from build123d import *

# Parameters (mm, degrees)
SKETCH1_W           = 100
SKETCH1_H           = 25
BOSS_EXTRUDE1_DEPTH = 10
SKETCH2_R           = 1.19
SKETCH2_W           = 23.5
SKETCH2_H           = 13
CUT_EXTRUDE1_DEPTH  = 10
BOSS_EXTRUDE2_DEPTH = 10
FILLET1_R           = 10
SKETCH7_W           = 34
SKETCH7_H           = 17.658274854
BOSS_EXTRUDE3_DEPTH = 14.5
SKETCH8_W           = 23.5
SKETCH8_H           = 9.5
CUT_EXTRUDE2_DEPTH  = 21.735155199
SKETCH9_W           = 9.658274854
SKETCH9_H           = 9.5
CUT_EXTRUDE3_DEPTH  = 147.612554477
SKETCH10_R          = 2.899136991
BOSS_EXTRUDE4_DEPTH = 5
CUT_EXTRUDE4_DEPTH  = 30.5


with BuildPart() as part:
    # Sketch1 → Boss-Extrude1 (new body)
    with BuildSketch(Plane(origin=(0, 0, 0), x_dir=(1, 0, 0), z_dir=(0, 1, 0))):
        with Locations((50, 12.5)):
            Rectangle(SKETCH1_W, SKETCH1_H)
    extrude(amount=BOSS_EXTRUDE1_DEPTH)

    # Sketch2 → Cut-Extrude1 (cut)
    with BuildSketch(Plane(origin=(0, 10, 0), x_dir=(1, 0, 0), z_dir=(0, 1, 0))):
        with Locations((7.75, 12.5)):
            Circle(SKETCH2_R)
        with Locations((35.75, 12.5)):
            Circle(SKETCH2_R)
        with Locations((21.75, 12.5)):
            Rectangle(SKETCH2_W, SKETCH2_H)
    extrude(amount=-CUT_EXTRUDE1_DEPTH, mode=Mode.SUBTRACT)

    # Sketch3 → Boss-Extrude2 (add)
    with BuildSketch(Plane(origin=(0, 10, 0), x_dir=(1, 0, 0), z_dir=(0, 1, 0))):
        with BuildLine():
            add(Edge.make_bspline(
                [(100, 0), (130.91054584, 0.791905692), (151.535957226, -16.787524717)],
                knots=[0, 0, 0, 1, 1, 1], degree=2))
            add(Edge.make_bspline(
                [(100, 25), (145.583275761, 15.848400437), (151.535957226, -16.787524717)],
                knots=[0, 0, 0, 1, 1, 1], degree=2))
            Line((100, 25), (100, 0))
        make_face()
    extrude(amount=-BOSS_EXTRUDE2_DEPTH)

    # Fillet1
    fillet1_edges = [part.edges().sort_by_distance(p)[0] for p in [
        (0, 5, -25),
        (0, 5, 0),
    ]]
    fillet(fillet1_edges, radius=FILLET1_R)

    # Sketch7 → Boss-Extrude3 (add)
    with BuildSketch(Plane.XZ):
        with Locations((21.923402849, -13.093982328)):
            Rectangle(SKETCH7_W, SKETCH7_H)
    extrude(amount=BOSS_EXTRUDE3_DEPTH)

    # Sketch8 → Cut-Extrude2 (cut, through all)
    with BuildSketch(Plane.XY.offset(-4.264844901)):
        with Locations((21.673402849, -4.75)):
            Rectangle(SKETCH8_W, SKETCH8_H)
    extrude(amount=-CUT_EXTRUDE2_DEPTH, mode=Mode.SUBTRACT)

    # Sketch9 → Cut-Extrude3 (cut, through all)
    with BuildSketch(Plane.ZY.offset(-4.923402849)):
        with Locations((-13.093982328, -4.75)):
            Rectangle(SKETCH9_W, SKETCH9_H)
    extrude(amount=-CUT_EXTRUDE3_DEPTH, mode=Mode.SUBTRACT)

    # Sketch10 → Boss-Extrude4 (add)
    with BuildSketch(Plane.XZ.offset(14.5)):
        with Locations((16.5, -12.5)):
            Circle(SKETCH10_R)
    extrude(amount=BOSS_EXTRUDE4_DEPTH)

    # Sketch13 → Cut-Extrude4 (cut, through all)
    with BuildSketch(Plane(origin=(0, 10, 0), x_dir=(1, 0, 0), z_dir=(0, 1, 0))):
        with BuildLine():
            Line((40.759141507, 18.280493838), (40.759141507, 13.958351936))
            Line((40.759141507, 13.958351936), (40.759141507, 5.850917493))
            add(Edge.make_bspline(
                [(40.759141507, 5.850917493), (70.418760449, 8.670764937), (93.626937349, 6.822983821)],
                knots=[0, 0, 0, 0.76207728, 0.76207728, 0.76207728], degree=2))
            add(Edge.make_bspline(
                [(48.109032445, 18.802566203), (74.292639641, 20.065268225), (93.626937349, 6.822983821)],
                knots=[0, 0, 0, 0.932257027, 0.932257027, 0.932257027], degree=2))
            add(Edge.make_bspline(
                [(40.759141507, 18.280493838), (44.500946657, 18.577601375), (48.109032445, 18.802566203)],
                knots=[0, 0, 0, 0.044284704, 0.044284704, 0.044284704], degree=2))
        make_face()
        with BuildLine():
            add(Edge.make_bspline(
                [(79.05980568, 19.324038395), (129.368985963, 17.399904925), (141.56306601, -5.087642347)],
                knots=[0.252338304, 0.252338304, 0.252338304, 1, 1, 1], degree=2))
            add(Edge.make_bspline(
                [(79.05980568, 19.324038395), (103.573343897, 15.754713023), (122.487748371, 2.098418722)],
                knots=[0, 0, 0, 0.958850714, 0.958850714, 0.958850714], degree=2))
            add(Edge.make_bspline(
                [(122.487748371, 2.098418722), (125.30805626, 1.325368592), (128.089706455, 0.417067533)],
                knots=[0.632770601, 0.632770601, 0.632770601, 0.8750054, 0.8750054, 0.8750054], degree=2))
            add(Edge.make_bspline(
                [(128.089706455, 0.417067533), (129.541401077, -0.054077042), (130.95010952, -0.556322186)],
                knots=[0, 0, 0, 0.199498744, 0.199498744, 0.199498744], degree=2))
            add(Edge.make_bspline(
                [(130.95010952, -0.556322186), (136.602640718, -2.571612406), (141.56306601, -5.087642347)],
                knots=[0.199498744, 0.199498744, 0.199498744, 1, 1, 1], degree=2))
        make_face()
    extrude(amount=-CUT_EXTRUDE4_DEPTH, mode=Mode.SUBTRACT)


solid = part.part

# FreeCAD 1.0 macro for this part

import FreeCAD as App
import Part
import Sketcher

V = App.Vector
Q = App.Units.Quantity


def edges_at(feature, points):
    """Names of the edges that pass closest to the given points."""
    edges = feature.Shape.Edges
    near = lambda p: min(range(len(edges)), key=lambda i: edges[i].distToShape(Part.Vertex(*p))[0])
    return sorted({f"Edge{near(p) + 1}" for p in points})

doc = App.newDocument("Part")
body = doc.addObject("PartDesign::Body", "Body")

# Sketch on XZ plane
sketch1 = body.newObject("Sketcher::SketchObject", "Sketch")
sketch1.AttachmentSupport = (doc.getObject("XZ_Plane"), [""])
sketch1.MapMode = "FlatFace"
sketch1.addGeometry([
    Part.LineSegment(V(0, -25, 0), V(0, 0, 0)),
    Part.LineSegment(V(0, 0, 0), V(100, 0, 0)),
    Part.LineSegment(V(100, 0, 0), V(100, -25, 0)),
    Part.LineSegment(V(100, -25, 0), V(0, -25, 0)),
], False)
sketch1.addConstraint([
    Sketcher.Constraint("Coincident", 0, 2, 1, 1),
    Sketcher.Constraint("Coincident", 1, 2, 2, 1),
    Sketcher.Constraint("Coincident", 2, 2, 3, 1),
    Sketcher.Constraint("Coincident", 3, 2, 0, 1),
    Sketcher.Constraint("Vertical", 0),
    Sketcher.Constraint("Horizontal", 1),
    Sketcher.Constraint("Vertical", 2),
    Sketcher.Constraint("Horizontal", 3),
    Sketcher.Constraint("Coincident", 0, 2, -1, 1),
    Sketcher.Constraint("DistanceX", 1, 1, 1, 2, Q("100 mm")),
    Sketcher.Constraint("DistanceY", 0, 1, 0, 2, Q("25 mm")),
])
pad1 = body.newObject("PartDesign::Pad", "Pad")
pad1.Profile = sketch1
pad1.Length = 10
pad1.Reversed = True

# Sketch on XZ plane
sketch2 = body.newObject("Sketcher::SketchObject", "Sketch001")
sketch2.AttachmentSupport = (doc.getObject("XZ_Plane"), [""])
sketch2.MapMode = "FlatFace"
sketch2.AttachmentOffset = App.Placement(V(0, 0, -10), App.Rotation())
sketch2.addGeometry([
    Part.Circle(V(7.8, -12.5, 0), V(0, 0, 1), 1.2),  # 0
    Part.Circle(V(35.8, -12.5, 0), V(0, 0, 1), 1.2),  # 1
    Part.LineSegment(V(10, -19, 0), V(10, -6, 0)),  # 2
    Part.LineSegment(V(10, -6, 0), V(33.5, -6, 0)),  # 3
    Part.LineSegment(V(33.5, -6, 0), V(33.5, -19, 0)),  # 4
    Part.LineSegment(V(33.5, -19, 0), V(10, -19, 0)),  # 5
], False)
sketch2.addConstraint([
    Sketcher.Constraint("Coincident", 2, 2, 3, 1),
    Sketcher.Constraint("Coincident", 3, 2, 4, 1),
    Sketcher.Constraint("Coincident", 4, 2, 5, 1),
    Sketcher.Constraint("Coincident", 5, 2, 2, 1),
    Sketcher.Constraint("Vertical", 2),
    Sketcher.Constraint("Horizontal", 3),
    Sketcher.Constraint("Vertical", 4),
    Sketcher.Constraint("Horizontal", 5),
    Sketcher.Constraint("Equal", 0, 1),
    Sketcher.Constraint("Horizontal", 0, 3, 1, 3),
    Sketcher.Constraint("Diameter", 0, Q("2.38 mm")),
    Sketcher.Constraint("DistanceY", 2, 1, 2, 2, Q("13 mm")),
    Sketcher.Constraint("DistanceX", 3, 1, 3, 2, Q("23.5 mm")),
    Sketcher.Constraint("DistanceX", -1, 1, 2, 2, Q("10 mm")),
    Sketcher.Constraint("DistanceY", 2, 2, -1, 1, Q("6 mm")),
    Sketcher.Constraint("DistanceX", 0, 3, 1, 3, Q("28 mm")),
    Sketcher.Constraint("DistanceY", 0, 3, -1, 1, Q("12.5 mm")),
    Sketcher.Constraint("DistanceX", -1, 1, 0, 3, Q("7.75 mm")),
])
pocket1 = body.newObject("PartDesign::Pocket", "Pocket")
pocket1.Profile = sketch2
pocket1.Length = 10
pocket1.Reversed = True

# Sketch on XZ plane
sketch3 = body.newObject("Sketcher::SketchObject", "Sketch002")
sketch3.AttachmentSupport = (doc.getObject("XZ_Plane"), [""])
sketch3.MapMode = "FlatFace"
sketch3.AttachmentOffset = App.Placement(V(0, 0, -10), App.Rotation())
sketch3.addGeometry([
    Part.BSplineCurve([V(100, 0, 0), V(130.910546, -0.791906, 0), V(151.535957, 16.787525, 0)], [3, 3], [0, 1], False, 2, [1, 1, 1], False),
    Part.BSplineCurve([V(100, -25, 0), V(145.583276, -15.8484, 0), V(151.535957, 16.787525, 0)], [3, 3], [0, 1], False, 2, [1, 1, 1], False),
    Part.LineSegment(V(100, -25, 0), V(100, 0, 0)),
], False)
sketch3.addConstraint([
    Sketcher.Constraint("Block", 0),
    Sketcher.Constraint("Block", 1),
    Sketcher.Constraint("Coincident", 1, 1, 2, 1),
    Sketcher.Constraint("Coincident", 2, 2, 0, 1),
])
pad2 = body.newObject("PartDesign::Pad", "Pad001")
pad2.Profile = sketch3
pad2.Length = 10
doc.recompute()

fillet = body.newObject("PartDesign::Fillet", "Fillet")
fillet.Base = (pad2, edges_at(pad2, [(0, 5, -25), (0, 5, 0)]))
fillet.Radius = 10

# Sketch on XZ plane
sketch4 = body.newObject("Sketcher::SketchObject", "Sketch003")
sketch4.AttachmentSupport = (doc.getObject("XZ_Plane"), [""])
sketch4.MapMode = "FlatFace"
sketch4.addGeometry([
    Part.LineSegment(V(5, -4, 0), V(5, -22, 0)),
    Part.LineSegment(V(5, -22, 0), V(39, -22, 0)),
    Part.LineSegment(V(39, -22, 0), V(39, -4, 0)),
    Part.LineSegment(V(39, -4, 0), V(5, -4, 0)),
], False)
sketch4.addConstraint([
    Sketcher.Constraint("Coincident", 0, 2, 1, 1),
    Sketcher.Constraint("Coincident", 1, 2, 2, 1),
    Sketcher.Constraint("Coincident", 2, 2, 3, 1),
    Sketcher.Constraint("Coincident", 3, 2, 0, 1),
    Sketcher.Constraint("Vertical", 0),
    Sketcher.Constraint("Horizontal", 1),
    Sketcher.Constraint("Vertical", 2),
    Sketcher.Constraint("Horizontal", 3),
    Sketcher.Constraint("DistanceX", 1, 1, 1, 2, Q("34 mm")),
    Sketcher.Constraint("DistanceY", 0, 2, 0, 1, Q("17.658275 mm")),
    Sketcher.Constraint("DistanceY", 0, 2, -1, 1, Q("21.92312 mm")),
    Sketcher.Constraint("DistanceX", -1, 1, 0, 2, Q("4.923403 mm")),
])
pad3 = body.newObject("PartDesign::Pad", "Pad002")
pad3.Profile = sketch4
pad3.Length = 14.5

# Sketch on XY plane
sketch5 = body.newObject("Sketcher::SketchObject", "Sketch004")
sketch5.AttachmentSupport = (doc.getObject("XY_Plane"), [""])
sketch5.MapMode = "FlatFace"
sketch5.AttachmentOffset = App.Placement(V(0, 0, -4.264845), App.Rotation())
sketch5.addGeometry([
    Part.LineSegment(V(10, 0, 0), V(10, -10, 0)),
    Part.LineSegment(V(10, -10, 0), V(33, -10, 0)),
    Part.LineSegment(V(33, -10, 0), V(33, 0, 0)),
    Part.LineSegment(V(33, 0, 0), V(10, 0, 0)),
], False)
sketch5.addConstraint([
    Sketcher.Constraint("Coincident", 0, 2, 1, 1),
    Sketcher.Constraint("Coincident", 1, 2, 2, 1),
    Sketcher.Constraint("Coincident", 2, 2, 3, 1),
    Sketcher.Constraint("Coincident", 3, 2, 0, 1),
    Sketcher.Constraint("Vertical", 0),
    Sketcher.Constraint("Horizontal", 1),
    Sketcher.Constraint("Vertical", 2),
    Sketcher.Constraint("Horizontal", 3),
    Sketcher.Constraint("PointOnObject", 2, 2, -1),
    Sketcher.Constraint("DistanceX", 1, 1, 1, 2, Q("23.5 mm")),
    Sketcher.Constraint("DistanceY", 0, 2, 0, 1, Q("9.5 mm")),
    Sketcher.Constraint("DistanceX", -1, 1, 0, 2, Q("9.923403 mm")),
])
pocket2 = body.newObject("PartDesign::Pocket", "Pocket001")
pocket2.Profile = sketch5
pocket2.Type = "ThroughAll"

# Sketch on YZ plane
sketch6 = body.newObject("Sketcher::SketchObject", "Sketch005")
sketch6.AttachmentSupport = (doc.getObject("YZ_Plane"), [""])
sketch6.MapMode = "FlatFace"
sketch6.AttachmentOffset = App.Placement(V(0, 0, 4.923403), App.Rotation())
sketch6.addGeometry([
    Part.LineSegment(V(0, -18, 0), V(-10, -18, 0)),
    Part.LineSegment(V(-10, -18, 0), V(-10, -8, 0)),
    Part.LineSegment(V(-10, -8, 0), V(0, -8, 0)),
    Part.LineSegment(V(0, -8, 0), V(0, -18, 0)),
], False)
sketch6.addConstraint([
    Sketcher.Constraint("Coincident", 0, 2, 1, 1),
    Sketcher.Constraint("Coincident", 1, 2, 2, 1),
    Sketcher.Constraint("Coincident", 2, 2, 3, 1),
    Sketcher.Constraint("Coincident", 3, 2, 0, 1),
    Sketcher.Constraint("Horizontal", 0),
    Sketcher.Constraint("Vertical", 1),
    Sketcher.Constraint("Horizontal", 2),
    Sketcher.Constraint("Vertical", 3),
    Sketcher.Constraint("PointOnObject", 2, 2, -2),
    Sketcher.Constraint("DistanceX", 0, 2, 0, 1, Q("9.5 mm")),
    Sketcher.Constraint("DistanceY", 1, 1, 1, 2, Q("9.658275 mm")),
    Sketcher.Constraint("DistanceY", 0, 2, -1, 1, Q("17.92312 mm")),
])
pocket3 = body.newObject("PartDesign::Pocket", "Pocket002")
pocket3.Profile = sketch6
pocket3.Type = "ThroughAll"
pocket3.Reversed = True

# Sketch on XZ plane
sketch7 = body.newObject("Sketcher::SketchObject", "Sketch006")
sketch7.AttachmentSupport = (doc.getObject("XZ_Plane"), [""])
sketch7.MapMode = "FlatFace"
sketch7.AttachmentOffset = App.Placement(V(0, 0, 14.5), App.Rotation())
sketch7.addGeometry(Part.Circle(V(16.5, -12.5, 0), V(0, 0, 1), 2.9), False)
sketch7.addConstraint([
    Sketcher.Constraint("DistanceX", -1, 1, 0, 3, Q("16.5 mm")),
    Sketcher.Constraint("DistanceY", 0, 3, -1, 1, Q("12.5 mm")),
    Sketcher.Constraint("Diameter", 0, Q("5.798274 mm")),
])
pad4 = body.newObject("PartDesign::Pad", "Pad003")
pad4.Profile = sketch7
pad4.Length = 5

# Sketch on XZ plane
sketch8 = body.newObject("Sketcher::SketchObject", "Sketch007")
sketch8.AttachmentSupport = (doc.getObject("XZ_Plane"), [""])
sketch8.MapMode = "FlatFace"
sketch8.AttachmentOffset = App.Placement(V(0, 0, -10), App.Rotation())
sketch8.addGeometry([
    Part.LineSegment(V(40.759142, -18.280494, 0), V(40.759142, -5.850917, 0)),  # 0
    Part.BSplineCurve([V(40.759142, -5.850917, 0), V(70.41876, -8.670765, 0), V(93.626937, -6.822984, 0)], [3, 3], [0, 0.76207728], False, 2, [1, 1, 1], False),  # 1
    Part.BSplineCurve([V(48.109032, -18.802566, 0), V(74.29264, -20.065268, 0), V(93.626937, -6.822984, 0)], [3, 3], [0, 0.932257027], False, 2, [1, 1, 1], False),  # 2
    Part.BSplineCurve([V(40.759142, -18.280494, 0), V(44.500947, -18.577601, 0), V(48.109032, -18.802566, 0)], [3, 3], [0, 0.044284704], False, 2, [1, 1, 1], False),  # 3
    Part.BSplineCurve([V(79.059806, -19.324038, 0), V(129.368986, -17.399905, 0), V(141.563066, 5.087642, 0)], [3, 3], [0.252338304, 1], False, 2, [1, 1, 1], False),  # 4
    Part.BSplineCurve([V(79.059806, -19.324038, 0), V(103.573344, -15.754713, 0), V(122.487748, -2.098419, 0)], [3, 3], [0, 0.958850714], False, 2, [1, 1, 1], False),  # 5
    Part.BSplineCurve([V(122.487748, -2.098419, 0), V(125.308056, -1.325369, 0), V(128.089706, -0.417068, 0)], [3, 3], [0.632770601, 0.8750054], False, 2, [1, 1, 1], False),  # 6
    Part.BSplineCurve([V(128.089706, -0.417068, 0), V(129.541401, 0.054077, 0), V(130.95011, 0.556322, 0)], [3, 3], [0, 0.199498744], False, 2, [1, 1, 1], False),  # 7
    Part.BSplineCurve([V(130.95011, 0.556322, 0), V(136.602641, 2.571612, 0), V(141.563066, 5.087642, 0)], [3, 3], [0.199498744, 1], False, 2, [1, 1, 1], False),  # 8
], False)
sketch8.addConstraint([
    Sketcher.Constraint("Block", 1),
    Sketcher.Constraint("Block", 2),
    Sketcher.Constraint("Block", 3),
    Sketcher.Constraint("Block", 4),
    Sketcher.Constraint("Block", 5),
    Sketcher.Constraint("Block", 6),
    Sketcher.Constraint("Block", 7),
    Sketcher.Constraint("Block", 8),
    Sketcher.Constraint("Coincident", 0, 2, 1, 1),
    Sketcher.Constraint("Coincident", 3, 1, 0, 1),
])
pocket4 = body.newObject("PartDesign::Pocket", "Pocket003")
pocket4.Profile = sketch8
pocket4.Type = "ThroughAll"
pocket4.Reversed = True

doc.recompute()
